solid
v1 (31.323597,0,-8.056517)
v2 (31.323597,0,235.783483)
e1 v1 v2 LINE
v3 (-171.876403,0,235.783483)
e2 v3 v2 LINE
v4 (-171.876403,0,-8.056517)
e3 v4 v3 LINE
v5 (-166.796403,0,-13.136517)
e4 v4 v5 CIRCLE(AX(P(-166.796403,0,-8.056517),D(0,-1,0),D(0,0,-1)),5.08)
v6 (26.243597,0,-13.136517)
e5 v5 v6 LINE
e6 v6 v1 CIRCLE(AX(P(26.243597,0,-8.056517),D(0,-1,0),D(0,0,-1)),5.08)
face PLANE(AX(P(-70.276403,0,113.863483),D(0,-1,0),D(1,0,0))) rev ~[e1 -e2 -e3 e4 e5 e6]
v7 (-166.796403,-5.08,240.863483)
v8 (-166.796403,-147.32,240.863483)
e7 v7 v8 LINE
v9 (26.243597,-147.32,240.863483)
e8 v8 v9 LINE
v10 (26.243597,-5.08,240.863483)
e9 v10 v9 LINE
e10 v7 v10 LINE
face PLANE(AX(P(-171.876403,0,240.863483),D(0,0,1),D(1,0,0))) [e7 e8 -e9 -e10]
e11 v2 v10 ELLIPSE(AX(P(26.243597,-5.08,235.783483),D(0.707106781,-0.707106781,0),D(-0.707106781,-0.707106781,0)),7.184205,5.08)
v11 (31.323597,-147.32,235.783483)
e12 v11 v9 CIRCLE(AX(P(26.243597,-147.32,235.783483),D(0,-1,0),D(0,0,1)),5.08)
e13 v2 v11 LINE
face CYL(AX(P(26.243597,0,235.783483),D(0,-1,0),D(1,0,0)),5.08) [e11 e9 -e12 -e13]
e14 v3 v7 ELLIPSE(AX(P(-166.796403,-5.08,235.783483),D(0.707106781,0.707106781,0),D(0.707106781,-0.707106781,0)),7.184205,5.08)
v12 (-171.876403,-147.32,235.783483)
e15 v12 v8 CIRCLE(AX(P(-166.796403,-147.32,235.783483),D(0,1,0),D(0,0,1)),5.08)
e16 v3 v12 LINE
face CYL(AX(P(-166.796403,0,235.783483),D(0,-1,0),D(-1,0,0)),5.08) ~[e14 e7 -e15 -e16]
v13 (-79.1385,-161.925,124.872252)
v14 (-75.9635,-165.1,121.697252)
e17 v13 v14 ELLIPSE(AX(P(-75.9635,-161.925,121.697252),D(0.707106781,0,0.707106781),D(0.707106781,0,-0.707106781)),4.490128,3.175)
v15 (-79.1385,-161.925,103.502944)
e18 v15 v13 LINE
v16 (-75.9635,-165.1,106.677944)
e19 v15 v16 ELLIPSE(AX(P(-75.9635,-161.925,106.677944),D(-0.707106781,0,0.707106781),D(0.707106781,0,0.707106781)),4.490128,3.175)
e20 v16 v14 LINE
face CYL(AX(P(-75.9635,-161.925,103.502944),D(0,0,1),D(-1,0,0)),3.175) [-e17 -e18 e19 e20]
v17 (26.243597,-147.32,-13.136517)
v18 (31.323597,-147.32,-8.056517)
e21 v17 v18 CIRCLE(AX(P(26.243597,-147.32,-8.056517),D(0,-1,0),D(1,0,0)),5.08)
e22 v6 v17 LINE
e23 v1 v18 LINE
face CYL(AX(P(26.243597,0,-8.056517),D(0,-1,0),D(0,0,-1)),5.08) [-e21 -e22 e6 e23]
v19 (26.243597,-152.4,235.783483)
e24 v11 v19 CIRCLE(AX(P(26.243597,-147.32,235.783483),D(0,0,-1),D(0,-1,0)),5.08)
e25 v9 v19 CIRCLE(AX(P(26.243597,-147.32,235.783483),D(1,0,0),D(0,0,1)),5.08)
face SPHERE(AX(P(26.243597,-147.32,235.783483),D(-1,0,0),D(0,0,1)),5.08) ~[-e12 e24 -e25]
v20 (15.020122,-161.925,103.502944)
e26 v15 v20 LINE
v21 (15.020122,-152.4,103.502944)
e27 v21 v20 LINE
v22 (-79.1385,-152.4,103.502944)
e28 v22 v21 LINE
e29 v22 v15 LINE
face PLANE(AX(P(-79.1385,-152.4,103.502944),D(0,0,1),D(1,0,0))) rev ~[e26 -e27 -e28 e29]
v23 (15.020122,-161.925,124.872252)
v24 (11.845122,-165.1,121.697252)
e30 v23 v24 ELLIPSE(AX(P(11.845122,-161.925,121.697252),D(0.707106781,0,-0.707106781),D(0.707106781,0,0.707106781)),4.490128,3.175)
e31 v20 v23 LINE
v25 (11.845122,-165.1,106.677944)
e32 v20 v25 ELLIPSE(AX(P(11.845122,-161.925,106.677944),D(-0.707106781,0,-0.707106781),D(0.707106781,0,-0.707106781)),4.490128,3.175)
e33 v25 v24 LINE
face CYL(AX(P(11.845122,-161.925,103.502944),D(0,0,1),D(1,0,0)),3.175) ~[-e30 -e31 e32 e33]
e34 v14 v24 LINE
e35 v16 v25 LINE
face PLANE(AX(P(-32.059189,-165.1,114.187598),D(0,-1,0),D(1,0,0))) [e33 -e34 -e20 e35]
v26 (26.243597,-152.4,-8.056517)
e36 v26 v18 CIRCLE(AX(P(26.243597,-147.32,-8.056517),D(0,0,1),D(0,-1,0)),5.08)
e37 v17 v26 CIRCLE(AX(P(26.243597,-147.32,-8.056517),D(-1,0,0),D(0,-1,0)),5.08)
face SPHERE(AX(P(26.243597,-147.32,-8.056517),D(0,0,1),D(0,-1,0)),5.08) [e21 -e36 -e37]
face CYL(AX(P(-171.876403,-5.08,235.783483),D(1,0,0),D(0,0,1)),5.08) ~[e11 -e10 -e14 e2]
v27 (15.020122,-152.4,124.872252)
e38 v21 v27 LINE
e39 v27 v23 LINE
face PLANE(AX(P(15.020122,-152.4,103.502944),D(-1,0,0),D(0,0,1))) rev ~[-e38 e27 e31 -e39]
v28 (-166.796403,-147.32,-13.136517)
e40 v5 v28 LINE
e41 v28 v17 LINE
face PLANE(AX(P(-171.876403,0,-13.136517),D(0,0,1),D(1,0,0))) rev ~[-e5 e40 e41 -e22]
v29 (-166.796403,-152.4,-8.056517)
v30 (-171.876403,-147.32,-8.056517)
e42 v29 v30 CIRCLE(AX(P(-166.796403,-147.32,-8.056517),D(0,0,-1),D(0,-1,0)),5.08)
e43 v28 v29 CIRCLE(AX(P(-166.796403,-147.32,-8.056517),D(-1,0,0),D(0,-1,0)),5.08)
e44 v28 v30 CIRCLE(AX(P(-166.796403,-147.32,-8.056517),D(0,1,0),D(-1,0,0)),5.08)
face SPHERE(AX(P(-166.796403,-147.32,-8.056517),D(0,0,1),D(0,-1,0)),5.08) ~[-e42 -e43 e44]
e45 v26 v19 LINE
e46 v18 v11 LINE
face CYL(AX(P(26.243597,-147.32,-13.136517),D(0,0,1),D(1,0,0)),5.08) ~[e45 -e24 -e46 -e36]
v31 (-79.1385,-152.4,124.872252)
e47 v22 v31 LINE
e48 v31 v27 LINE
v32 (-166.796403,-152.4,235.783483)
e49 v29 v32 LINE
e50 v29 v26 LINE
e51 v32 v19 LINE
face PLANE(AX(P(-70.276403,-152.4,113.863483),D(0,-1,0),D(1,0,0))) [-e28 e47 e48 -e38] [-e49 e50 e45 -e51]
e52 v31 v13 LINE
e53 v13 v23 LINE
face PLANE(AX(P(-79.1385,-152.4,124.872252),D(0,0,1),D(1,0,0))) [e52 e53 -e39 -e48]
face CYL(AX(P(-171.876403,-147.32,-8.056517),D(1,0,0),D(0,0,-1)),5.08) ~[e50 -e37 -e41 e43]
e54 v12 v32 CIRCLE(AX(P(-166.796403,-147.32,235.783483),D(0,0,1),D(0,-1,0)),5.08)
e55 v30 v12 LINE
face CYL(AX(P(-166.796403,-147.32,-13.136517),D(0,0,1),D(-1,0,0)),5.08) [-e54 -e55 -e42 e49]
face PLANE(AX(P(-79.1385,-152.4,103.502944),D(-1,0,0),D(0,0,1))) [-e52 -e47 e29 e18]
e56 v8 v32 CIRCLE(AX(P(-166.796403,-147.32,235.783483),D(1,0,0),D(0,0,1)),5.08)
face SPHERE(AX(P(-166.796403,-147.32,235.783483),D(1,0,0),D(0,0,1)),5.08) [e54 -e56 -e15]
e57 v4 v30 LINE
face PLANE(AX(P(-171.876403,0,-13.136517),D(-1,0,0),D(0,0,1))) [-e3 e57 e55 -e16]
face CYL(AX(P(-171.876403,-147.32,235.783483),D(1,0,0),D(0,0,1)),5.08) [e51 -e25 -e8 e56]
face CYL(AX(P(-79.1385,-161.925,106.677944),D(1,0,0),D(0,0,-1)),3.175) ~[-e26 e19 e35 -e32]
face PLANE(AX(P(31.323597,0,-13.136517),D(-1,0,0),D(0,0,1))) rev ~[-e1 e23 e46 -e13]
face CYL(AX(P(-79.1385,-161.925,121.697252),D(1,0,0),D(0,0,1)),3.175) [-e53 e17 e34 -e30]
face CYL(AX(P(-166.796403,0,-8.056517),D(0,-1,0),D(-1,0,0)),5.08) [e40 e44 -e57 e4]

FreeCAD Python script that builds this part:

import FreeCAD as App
import Part
import Sketcher
from FreeCAD import Vector
Q = App.Units.Quantity


def edges_at(feature, points):
    """Names of the edges that pass closest to the given points."""
    edges = feature.Shape.Edges
    near = lambda p: min(range(len(edges)), key=lambda i: edges[i].distToShape(Part.Vertex(*p))[0])
    return sorted({f"Edge{near(p) + 1}" for p in points})

doc = App.newDocument("Part")
body = doc.addObject("PartDesign::Body", "Body")

sketch1 = body.newObject("Sketcher::SketchObject", "Sketch")
sketch1.AttachmentSupport = (doc.getObject("XZ_Plane"), [""])
sketch1.MapMode = "FlatFace"
sketch1.addGeometry([
    Part.LineSegment(Vector(-172, 241, 0), Vector(-172, -13, 0)),
    Part.LineSegment(Vector(-172, -13, 0), Vector(31, -13, 0)),
    Part.LineSegment(Vector(31, -13, 0), Vector(31, 241, 0)),
    Part.LineSegment(Vector(31, 241, 0), Vector(-172, 241, 0)),
], False)
sketch1.addConstraint([
    Sketcher.Constraint("Coincident", 0, 2, 1, 1),
    Sketcher.Constraint("Coincident", 1, 2, 2, 1),
    Sketcher.Constraint("Coincident", 2, 2, 3, 1),
    Sketcher.Constraint("Coincident", 3, 2, 0, 1),
    Sketcher.Constraint("Vertical", 0),
    Sketcher.Constraint("Horizontal", 1),
    Sketcher.Constraint("Vertical", 2),
    Sketcher.Constraint("Horizontal", 3),
    Sketcher.Constraint("DistanceX", 1, 1, 1, 2, Q("8 in")),
    Sketcher.Constraint("DistanceY", 0, 2, 0, 1, Q("10 in")),
    Sketcher.Constraint("DistanceX", 0, 2, -1, 1, 171.876403),
    Sketcher.Constraint("DistanceY", 0, 2, -1, 1, 13.136517),
])
pad1 = body.newObject("PartDesign::Pad", "Pad")
pad1.Profile = sketch1
pad1.Length = Q("6 in")
doc.recompute()

fillet = body.newObject("PartDesign::Fillet", "Fillet")
fillet.Base = (pad1, edges_at(pad1, [
    (-70.276, -152.4, 240.863),
    (31.324, -76.2, 240.863),
    (-171.876, -76.2, 240.863),
    (-70.276, 0, 240.863),
    (31.324, -152.4, 113.863),
    (-171.876, -152.4, 113.863),
    (-70.276, -152.4, -13.137),
    (31.324, -76.2, -13.137),
    (-171.876, -76.2, -13.137),
]))
fillet.Radius = Q("0.2 in")

sketch2 = body.newObject("Sketcher::SketchObject", "Sketch001")
sketch2.AttachmentSupport = (doc.getObject("XZ_Plane"), [""])
sketch2.MapMode = "FlatFace"
sketch2.AttachmentOffset = App.Placement(Vector(0, 0, 6 * 25.4), App.Rotation())
sketch2.addGeometry([
    Part.LineSegment(Vector(-79, 125, 0), Vector(-79, 104, 0)),
    Part.LineSegment(Vector(-79, 104, 0), Vector(15, 104, 0)),
    Part.LineSegment(Vector(15, 104, 0), Vector(15, 125, 0)),
    Part.LineSegment(Vector(15, 125, 0), Vector(-79, 125, 0)),
], False)
sketch2.addConstraint([
    Sketcher.Constraint("Coincident", 0, 2, 1, 1),
    Sketcher.Constraint("Coincident", 1, 2, 2, 1),
    Sketcher.Constraint("Coincident", 2, 2, 3, 1),
    Sketcher.Constraint("Coincident", 3, 2, 0, 1),
    Sketcher.Constraint("Vertical", 0),
    Sketcher.Constraint("Horizontal", 1),
    Sketcher.Constraint("Vertical", 2),
    Sketcher.Constraint("Horizontal", 3),
    Sketcher.Constraint("DistanceX", 1, 1, 1, 2, 94.158622),
    Sketcher.Constraint("DistanceY", 0, 2, 0, 1, 21.369308),
    Sketcher.Constraint("DistanceX", 0, 2, -1, 1, 79.1385),
    Sketcher.Constraint("DistanceY", -1, 1, 0, 2, 103.502944),
])
pad2 = body.newObject("PartDesign::Pad", "Pad001")
pad2.Profile = sketch2
pad2.Length = Q("0.5 in")
doc.recompute()

fillet2 = body.newObject("PartDesign::Fillet", "Fillet001")
fillet2.Base = (pad2, edges_at(pad2, [
    (-32.059, -165.1, 103.503),
    (15.02, -165.1, 114.188),
    (-32.059, -165.1, 124.872),
    (-79.138, -165.1, 114.188),
]))
fillet2.Radius = Q("0.125 in")

doc.recompute()
